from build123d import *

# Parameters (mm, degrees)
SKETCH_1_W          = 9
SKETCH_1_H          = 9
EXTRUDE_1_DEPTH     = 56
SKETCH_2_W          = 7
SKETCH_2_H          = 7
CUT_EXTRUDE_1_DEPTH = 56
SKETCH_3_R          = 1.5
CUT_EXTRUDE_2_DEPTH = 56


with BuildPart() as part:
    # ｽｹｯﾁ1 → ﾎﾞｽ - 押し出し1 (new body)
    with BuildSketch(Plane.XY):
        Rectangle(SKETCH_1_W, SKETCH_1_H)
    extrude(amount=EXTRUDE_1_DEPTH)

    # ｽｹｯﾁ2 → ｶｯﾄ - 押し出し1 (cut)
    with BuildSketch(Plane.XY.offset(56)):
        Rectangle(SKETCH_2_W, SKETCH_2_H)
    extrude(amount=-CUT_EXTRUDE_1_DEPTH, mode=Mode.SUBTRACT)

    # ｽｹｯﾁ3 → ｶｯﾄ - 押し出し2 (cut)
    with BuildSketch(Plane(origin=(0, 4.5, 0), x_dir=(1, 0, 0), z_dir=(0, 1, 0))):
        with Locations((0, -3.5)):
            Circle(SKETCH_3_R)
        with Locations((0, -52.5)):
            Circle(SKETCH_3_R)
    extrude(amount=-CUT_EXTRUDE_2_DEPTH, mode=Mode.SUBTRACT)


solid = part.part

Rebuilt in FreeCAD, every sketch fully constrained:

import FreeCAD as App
import Part
import Sketcher
from FreeCAD import Vector
Q = App.Units.Quantity


def add_polygon(sketch, points):
    """Adds a closed chain of lines whose ends are joined by coincident constraints."""
    first, n = sketch.GeometryCount, len(points)
    for a, b in zip(points, points[1:] + points[:1]):
        sketch.addGeometry(Part.LineSegment(App.Vector(*a, 0), App.Vector(*b, 0)), False)
    for i in range(n):
        sketch.addConstraint(Sketcher.Constraint("Coincident", first + i, 2, first + (i + 1) % n, 1))

doc = App.newDocument("Part")
params = doc.addObject("Spreadsheet::Sheet", "Params")
for row, (alias, value) in enumerate([
    ("sketch1_width", "9 mm"),
    ("pad1_length", "56 mm"),
    ("sketch2_width", "7 mm"),
    ("pocket1_length", "56 mm"),
    ("sketch3_diameter", "3 mm"),
    ("pocket2_length", "56 mm"),
], start=1):
    params.set(f"A{row}", alias)
    params.set(f"B{row}", "=" + value)
    params.setAlias(f"B{row}", alias)

body = doc.addObject("PartDesign::Body", "Body")

# Sketch on XY plane
sketch1 = doc.addObject("Sketcher::SketchObject", "Sketch")
body.addObject(sketch1)
sketch1.AttachmentSupport = (doc.XY_Plane, [""])
sketch1.MapMode = "FlatFace"
add_polygon(sketch1, [(-4, 4), (-4, -4), (4, -4), (4, 4)])  # lines 0-3
sketch1.addConstraint(Sketcher.Constraint("Vertical", 0))
sketch1.addConstraint(Sketcher.Constraint("Horizontal", 1))
sketch1.addConstraint(Sketcher.Constraint("Vertical", 2))
sketch1.addConstraint(Sketcher.Constraint("Horizontal", 3))
sketch1.addConstraint(Sketcher.Constraint("Symmetric", 0, 2, 2, 2, -1, 1))
sketch1.addConstraint(Sketcher.Constraint("Equal", 3, 0))
sketch1.addConstraint(Sketcher.Constraint("DistanceX", 1, 1, 1, 2, Q("9 mm")))
sketch1.setExpression("Constraints[10]", "Params.sketch1_width")
pad1 = doc.addObject("PartDesign::Pad", "Pad")
body.addObject(pad1)
pad1.Profile = sketch1
pad1.setExpression("Length", "Params.pad1_length")

# Sketch on XY plane
sketch2 = doc.addObject("Sketcher::SketchObject", "Sketch001")
body.addObject(sketch2)
sketch2.AttachmentSupport = (doc.XY_Plane, [""])
sketch2.MapMode = "FlatFace"
sketch2.AttachmentOffset = App.Placement(Vector(0, 0, 56), App.Rotation())
add_polygon(sketch2, [(-4, 4), (-4, -4), (4, -4), (4, 4)])  # lines 0-3
sketch2.addConstraint(Sketcher.Constraint("Vertical", 0))
sketch2.addConstraint(Sketcher.Constraint("Horizontal", 1))
sketch2.addConstraint(Sketcher.Constraint("Vertical", 2))
sketch2.addConstraint(Sketcher.Constraint("Horizontal", 3))
sketch2.addConstraint(Sketcher.Constraint("Symmetric", 0, 2, 2, 2, -1, 1))
sketch2.addConstraint(Sketcher.Constraint("Equal", 3, 0))
sketch2.addConstraint(Sketcher.Constraint("DistanceX", 1, 1, 1, 2, Q("7 mm")))
sketch2.setExpression("Constraints[10]", "Params.sketch2_width")
pocket1 = doc.addObject("PartDesign::Pocket", "Pocket")
body.addObject(pocket1)
pocket1.Profile = sketch2
pocket1.setExpression("Length", "Params.pocket1_length")

# Sketch on XZ plane
sketch3 = doc.addObject("Sketcher::SketchObject", "Sketch002")
body.addObject(sketch3)
sketch3.AttachmentSupport = (doc.XZ_Plane, [""])
sketch3.MapMode = "FlatFace"
sketch3.AttachmentOffset = App.Placement(Vector(0, 0, -4.5), App.Rotation())
sketch3.addGeometry(Part.Circle(Vector(0, 3.5, 0), Vector(0, 0, 1), 1.5), False)
sketch3.addGeometry(Part.Circle(Vector(0, 52.5, 0), Vector(0, 0, 1), 1.5), False)
sketch3.addConstraint(Sketcher.Constraint("Equal", 0, 1))
sketch3.addConstraint(Sketcher.Constraint("PointOnObject", 0, 3, -2))
sketch3.addConstraint(Sketcher.Constraint("PointOnObject", 1, 3, -2))
sketch3.addConstraint(Sketcher.Constraint("Diameter", 0, Q("3 mm")))
sketch3.addConstraint(Sketcher.Constraint("DistanceY", 0, 3, 1, 3, Q("49 mm")))
sketch3.addConstraint(Sketcher.Constraint("DistanceY", -1, 1, 0, 3, Q("3.5 mm")))
sketch3.setExpression("Constraints[3]", "Params.sketch3_diameter")
pocket2 = doc.addObject("PartDesign::Pocket", "Pocket001")
body.addObject(pocket2)
pocket2.Profile = sketch3
pocket2.setExpression("Length", "Params.pocket2_length")
pocket2.Reversed = True

doc.recompute()
